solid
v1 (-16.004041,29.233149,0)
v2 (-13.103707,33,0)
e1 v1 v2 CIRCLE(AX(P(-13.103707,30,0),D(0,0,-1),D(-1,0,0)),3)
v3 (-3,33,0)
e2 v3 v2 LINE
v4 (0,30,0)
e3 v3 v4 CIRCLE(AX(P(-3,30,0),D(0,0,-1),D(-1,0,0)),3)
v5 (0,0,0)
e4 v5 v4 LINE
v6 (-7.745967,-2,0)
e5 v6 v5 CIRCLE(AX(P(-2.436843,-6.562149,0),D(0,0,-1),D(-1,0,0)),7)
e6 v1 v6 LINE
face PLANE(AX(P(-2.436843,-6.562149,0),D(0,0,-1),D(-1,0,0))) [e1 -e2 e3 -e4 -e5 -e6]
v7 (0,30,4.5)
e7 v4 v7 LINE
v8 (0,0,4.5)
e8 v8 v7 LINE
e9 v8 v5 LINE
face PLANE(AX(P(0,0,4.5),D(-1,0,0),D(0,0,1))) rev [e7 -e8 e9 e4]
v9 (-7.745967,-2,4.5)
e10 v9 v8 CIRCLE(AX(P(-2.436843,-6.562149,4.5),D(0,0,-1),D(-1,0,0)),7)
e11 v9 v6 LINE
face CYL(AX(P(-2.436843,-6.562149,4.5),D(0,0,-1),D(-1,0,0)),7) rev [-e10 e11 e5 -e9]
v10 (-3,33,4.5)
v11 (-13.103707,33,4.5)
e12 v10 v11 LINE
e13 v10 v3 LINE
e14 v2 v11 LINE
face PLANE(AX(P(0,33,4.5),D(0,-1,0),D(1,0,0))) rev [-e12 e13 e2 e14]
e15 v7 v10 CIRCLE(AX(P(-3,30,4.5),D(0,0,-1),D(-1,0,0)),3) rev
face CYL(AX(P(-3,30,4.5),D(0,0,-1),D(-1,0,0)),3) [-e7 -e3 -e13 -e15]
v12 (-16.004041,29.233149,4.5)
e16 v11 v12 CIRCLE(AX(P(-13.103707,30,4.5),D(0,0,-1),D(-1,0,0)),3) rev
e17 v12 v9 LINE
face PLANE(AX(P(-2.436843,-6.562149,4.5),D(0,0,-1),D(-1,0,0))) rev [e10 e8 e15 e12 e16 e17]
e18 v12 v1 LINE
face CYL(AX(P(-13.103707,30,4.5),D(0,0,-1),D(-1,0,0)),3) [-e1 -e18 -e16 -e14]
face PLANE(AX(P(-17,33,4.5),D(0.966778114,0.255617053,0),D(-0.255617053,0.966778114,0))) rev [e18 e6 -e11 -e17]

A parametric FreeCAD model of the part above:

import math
import FreeCAD as App
import Part
import Sketcher
Q = App.Units.Quantity


def edges_at(feature, points):
    """Names of the edges that pass closest to the given points."""
    edges = feature.Shape.Edges
    near = lambda p: min(range(len(edges)), key=lambda i: edges[i].distToShape(Part.Vertex(*p))[0])
    return sorted({f"Edge{near(p) + 1}" for p in points})

doc = App.newDocument("Part")
body = doc.addObject("PartDesign::Body", "Body")

# Sketch on XY plane
sketch1 = doc.addObject("Sketcher::SketchObject", "Sketch")
body.addObject(sketch1)
sketch1.AttachmentSupport = (doc.XY_Plane, [""])
sketch1.MapMode = "FlatFace"
sketch1.addGeometry([
    Part.LineSegment(App.Vector(0, 0, 0), App.Vector(0, 33, 0)),
    Part.LineSegment(App.Vector(0, 33, 0), App.Vector(-17, 33, 0)),
    Part.LineSegment(App.Vector(-17, 33, 0), App.Vector(-8, -2, 0)),
    Part.ArcOfCircle(Part.Circle(App.Vector(-2, -7, 0), App.Vector(0, 0, 1), 7), math.radians(70), math.radians(139)),
], False)
sketch1.addConstraint([
    Sketcher.Constraint("Coincident", 0, 2, 1, 1),
    Sketcher.Constraint("Coincident", 1, 2, 2, 1),
    Sketcher.Constraint("Coincident", 2, 2, 3, 2),
    Sketcher.Constraint("Coincident", 3, 1, 0, 1),
    Sketcher.Constraint("Vertical", 0),
    Sketcher.Constraint("Horizontal", 1),
    Sketcher.Constraint("Coincident", 3, 1, -1, 1),
    Sketcher.Constraint("Radius", 3, Q("7 mm")),
    Sketcher.Constraint("DistanceX", 1, 2, 1, 1, Q("17 mm")),
    Sketcher.Constraint("DistanceY", 0, 1, 0, 2, Q("33 mm")),
    Sketcher.Constraint("DistanceY", 2, 2, -1, 1, Q("2 mm")),
    Sketcher.Constraint("DistanceY", 3, 3, -1, 1, Q("6.562149 mm")),
])
pad1 = doc.addObject("PartDesign::Pad", "Pad")
body.addObject(pad1)
pad1.Profile = sketch1
pad1.Length = 4.5
doc.recompute()

fillet = doc.addObject("PartDesign::Fillet", "Fillet")
body.addObject(fillet)
fillet.Base = (pad1, edges_at(pad1, [(-17, 33, 2.25)]))
fillet.Radius = 3
doc.recompute()

fillet2 = doc.addObject("PartDesign::Fillet", "Fillet001")
body.addObject(fillet2)
fillet2.Base = (fillet, edges_at(fillet, [(0, 33, 2.25)]))
fillet2.Radius = 3

doc.recompute()
